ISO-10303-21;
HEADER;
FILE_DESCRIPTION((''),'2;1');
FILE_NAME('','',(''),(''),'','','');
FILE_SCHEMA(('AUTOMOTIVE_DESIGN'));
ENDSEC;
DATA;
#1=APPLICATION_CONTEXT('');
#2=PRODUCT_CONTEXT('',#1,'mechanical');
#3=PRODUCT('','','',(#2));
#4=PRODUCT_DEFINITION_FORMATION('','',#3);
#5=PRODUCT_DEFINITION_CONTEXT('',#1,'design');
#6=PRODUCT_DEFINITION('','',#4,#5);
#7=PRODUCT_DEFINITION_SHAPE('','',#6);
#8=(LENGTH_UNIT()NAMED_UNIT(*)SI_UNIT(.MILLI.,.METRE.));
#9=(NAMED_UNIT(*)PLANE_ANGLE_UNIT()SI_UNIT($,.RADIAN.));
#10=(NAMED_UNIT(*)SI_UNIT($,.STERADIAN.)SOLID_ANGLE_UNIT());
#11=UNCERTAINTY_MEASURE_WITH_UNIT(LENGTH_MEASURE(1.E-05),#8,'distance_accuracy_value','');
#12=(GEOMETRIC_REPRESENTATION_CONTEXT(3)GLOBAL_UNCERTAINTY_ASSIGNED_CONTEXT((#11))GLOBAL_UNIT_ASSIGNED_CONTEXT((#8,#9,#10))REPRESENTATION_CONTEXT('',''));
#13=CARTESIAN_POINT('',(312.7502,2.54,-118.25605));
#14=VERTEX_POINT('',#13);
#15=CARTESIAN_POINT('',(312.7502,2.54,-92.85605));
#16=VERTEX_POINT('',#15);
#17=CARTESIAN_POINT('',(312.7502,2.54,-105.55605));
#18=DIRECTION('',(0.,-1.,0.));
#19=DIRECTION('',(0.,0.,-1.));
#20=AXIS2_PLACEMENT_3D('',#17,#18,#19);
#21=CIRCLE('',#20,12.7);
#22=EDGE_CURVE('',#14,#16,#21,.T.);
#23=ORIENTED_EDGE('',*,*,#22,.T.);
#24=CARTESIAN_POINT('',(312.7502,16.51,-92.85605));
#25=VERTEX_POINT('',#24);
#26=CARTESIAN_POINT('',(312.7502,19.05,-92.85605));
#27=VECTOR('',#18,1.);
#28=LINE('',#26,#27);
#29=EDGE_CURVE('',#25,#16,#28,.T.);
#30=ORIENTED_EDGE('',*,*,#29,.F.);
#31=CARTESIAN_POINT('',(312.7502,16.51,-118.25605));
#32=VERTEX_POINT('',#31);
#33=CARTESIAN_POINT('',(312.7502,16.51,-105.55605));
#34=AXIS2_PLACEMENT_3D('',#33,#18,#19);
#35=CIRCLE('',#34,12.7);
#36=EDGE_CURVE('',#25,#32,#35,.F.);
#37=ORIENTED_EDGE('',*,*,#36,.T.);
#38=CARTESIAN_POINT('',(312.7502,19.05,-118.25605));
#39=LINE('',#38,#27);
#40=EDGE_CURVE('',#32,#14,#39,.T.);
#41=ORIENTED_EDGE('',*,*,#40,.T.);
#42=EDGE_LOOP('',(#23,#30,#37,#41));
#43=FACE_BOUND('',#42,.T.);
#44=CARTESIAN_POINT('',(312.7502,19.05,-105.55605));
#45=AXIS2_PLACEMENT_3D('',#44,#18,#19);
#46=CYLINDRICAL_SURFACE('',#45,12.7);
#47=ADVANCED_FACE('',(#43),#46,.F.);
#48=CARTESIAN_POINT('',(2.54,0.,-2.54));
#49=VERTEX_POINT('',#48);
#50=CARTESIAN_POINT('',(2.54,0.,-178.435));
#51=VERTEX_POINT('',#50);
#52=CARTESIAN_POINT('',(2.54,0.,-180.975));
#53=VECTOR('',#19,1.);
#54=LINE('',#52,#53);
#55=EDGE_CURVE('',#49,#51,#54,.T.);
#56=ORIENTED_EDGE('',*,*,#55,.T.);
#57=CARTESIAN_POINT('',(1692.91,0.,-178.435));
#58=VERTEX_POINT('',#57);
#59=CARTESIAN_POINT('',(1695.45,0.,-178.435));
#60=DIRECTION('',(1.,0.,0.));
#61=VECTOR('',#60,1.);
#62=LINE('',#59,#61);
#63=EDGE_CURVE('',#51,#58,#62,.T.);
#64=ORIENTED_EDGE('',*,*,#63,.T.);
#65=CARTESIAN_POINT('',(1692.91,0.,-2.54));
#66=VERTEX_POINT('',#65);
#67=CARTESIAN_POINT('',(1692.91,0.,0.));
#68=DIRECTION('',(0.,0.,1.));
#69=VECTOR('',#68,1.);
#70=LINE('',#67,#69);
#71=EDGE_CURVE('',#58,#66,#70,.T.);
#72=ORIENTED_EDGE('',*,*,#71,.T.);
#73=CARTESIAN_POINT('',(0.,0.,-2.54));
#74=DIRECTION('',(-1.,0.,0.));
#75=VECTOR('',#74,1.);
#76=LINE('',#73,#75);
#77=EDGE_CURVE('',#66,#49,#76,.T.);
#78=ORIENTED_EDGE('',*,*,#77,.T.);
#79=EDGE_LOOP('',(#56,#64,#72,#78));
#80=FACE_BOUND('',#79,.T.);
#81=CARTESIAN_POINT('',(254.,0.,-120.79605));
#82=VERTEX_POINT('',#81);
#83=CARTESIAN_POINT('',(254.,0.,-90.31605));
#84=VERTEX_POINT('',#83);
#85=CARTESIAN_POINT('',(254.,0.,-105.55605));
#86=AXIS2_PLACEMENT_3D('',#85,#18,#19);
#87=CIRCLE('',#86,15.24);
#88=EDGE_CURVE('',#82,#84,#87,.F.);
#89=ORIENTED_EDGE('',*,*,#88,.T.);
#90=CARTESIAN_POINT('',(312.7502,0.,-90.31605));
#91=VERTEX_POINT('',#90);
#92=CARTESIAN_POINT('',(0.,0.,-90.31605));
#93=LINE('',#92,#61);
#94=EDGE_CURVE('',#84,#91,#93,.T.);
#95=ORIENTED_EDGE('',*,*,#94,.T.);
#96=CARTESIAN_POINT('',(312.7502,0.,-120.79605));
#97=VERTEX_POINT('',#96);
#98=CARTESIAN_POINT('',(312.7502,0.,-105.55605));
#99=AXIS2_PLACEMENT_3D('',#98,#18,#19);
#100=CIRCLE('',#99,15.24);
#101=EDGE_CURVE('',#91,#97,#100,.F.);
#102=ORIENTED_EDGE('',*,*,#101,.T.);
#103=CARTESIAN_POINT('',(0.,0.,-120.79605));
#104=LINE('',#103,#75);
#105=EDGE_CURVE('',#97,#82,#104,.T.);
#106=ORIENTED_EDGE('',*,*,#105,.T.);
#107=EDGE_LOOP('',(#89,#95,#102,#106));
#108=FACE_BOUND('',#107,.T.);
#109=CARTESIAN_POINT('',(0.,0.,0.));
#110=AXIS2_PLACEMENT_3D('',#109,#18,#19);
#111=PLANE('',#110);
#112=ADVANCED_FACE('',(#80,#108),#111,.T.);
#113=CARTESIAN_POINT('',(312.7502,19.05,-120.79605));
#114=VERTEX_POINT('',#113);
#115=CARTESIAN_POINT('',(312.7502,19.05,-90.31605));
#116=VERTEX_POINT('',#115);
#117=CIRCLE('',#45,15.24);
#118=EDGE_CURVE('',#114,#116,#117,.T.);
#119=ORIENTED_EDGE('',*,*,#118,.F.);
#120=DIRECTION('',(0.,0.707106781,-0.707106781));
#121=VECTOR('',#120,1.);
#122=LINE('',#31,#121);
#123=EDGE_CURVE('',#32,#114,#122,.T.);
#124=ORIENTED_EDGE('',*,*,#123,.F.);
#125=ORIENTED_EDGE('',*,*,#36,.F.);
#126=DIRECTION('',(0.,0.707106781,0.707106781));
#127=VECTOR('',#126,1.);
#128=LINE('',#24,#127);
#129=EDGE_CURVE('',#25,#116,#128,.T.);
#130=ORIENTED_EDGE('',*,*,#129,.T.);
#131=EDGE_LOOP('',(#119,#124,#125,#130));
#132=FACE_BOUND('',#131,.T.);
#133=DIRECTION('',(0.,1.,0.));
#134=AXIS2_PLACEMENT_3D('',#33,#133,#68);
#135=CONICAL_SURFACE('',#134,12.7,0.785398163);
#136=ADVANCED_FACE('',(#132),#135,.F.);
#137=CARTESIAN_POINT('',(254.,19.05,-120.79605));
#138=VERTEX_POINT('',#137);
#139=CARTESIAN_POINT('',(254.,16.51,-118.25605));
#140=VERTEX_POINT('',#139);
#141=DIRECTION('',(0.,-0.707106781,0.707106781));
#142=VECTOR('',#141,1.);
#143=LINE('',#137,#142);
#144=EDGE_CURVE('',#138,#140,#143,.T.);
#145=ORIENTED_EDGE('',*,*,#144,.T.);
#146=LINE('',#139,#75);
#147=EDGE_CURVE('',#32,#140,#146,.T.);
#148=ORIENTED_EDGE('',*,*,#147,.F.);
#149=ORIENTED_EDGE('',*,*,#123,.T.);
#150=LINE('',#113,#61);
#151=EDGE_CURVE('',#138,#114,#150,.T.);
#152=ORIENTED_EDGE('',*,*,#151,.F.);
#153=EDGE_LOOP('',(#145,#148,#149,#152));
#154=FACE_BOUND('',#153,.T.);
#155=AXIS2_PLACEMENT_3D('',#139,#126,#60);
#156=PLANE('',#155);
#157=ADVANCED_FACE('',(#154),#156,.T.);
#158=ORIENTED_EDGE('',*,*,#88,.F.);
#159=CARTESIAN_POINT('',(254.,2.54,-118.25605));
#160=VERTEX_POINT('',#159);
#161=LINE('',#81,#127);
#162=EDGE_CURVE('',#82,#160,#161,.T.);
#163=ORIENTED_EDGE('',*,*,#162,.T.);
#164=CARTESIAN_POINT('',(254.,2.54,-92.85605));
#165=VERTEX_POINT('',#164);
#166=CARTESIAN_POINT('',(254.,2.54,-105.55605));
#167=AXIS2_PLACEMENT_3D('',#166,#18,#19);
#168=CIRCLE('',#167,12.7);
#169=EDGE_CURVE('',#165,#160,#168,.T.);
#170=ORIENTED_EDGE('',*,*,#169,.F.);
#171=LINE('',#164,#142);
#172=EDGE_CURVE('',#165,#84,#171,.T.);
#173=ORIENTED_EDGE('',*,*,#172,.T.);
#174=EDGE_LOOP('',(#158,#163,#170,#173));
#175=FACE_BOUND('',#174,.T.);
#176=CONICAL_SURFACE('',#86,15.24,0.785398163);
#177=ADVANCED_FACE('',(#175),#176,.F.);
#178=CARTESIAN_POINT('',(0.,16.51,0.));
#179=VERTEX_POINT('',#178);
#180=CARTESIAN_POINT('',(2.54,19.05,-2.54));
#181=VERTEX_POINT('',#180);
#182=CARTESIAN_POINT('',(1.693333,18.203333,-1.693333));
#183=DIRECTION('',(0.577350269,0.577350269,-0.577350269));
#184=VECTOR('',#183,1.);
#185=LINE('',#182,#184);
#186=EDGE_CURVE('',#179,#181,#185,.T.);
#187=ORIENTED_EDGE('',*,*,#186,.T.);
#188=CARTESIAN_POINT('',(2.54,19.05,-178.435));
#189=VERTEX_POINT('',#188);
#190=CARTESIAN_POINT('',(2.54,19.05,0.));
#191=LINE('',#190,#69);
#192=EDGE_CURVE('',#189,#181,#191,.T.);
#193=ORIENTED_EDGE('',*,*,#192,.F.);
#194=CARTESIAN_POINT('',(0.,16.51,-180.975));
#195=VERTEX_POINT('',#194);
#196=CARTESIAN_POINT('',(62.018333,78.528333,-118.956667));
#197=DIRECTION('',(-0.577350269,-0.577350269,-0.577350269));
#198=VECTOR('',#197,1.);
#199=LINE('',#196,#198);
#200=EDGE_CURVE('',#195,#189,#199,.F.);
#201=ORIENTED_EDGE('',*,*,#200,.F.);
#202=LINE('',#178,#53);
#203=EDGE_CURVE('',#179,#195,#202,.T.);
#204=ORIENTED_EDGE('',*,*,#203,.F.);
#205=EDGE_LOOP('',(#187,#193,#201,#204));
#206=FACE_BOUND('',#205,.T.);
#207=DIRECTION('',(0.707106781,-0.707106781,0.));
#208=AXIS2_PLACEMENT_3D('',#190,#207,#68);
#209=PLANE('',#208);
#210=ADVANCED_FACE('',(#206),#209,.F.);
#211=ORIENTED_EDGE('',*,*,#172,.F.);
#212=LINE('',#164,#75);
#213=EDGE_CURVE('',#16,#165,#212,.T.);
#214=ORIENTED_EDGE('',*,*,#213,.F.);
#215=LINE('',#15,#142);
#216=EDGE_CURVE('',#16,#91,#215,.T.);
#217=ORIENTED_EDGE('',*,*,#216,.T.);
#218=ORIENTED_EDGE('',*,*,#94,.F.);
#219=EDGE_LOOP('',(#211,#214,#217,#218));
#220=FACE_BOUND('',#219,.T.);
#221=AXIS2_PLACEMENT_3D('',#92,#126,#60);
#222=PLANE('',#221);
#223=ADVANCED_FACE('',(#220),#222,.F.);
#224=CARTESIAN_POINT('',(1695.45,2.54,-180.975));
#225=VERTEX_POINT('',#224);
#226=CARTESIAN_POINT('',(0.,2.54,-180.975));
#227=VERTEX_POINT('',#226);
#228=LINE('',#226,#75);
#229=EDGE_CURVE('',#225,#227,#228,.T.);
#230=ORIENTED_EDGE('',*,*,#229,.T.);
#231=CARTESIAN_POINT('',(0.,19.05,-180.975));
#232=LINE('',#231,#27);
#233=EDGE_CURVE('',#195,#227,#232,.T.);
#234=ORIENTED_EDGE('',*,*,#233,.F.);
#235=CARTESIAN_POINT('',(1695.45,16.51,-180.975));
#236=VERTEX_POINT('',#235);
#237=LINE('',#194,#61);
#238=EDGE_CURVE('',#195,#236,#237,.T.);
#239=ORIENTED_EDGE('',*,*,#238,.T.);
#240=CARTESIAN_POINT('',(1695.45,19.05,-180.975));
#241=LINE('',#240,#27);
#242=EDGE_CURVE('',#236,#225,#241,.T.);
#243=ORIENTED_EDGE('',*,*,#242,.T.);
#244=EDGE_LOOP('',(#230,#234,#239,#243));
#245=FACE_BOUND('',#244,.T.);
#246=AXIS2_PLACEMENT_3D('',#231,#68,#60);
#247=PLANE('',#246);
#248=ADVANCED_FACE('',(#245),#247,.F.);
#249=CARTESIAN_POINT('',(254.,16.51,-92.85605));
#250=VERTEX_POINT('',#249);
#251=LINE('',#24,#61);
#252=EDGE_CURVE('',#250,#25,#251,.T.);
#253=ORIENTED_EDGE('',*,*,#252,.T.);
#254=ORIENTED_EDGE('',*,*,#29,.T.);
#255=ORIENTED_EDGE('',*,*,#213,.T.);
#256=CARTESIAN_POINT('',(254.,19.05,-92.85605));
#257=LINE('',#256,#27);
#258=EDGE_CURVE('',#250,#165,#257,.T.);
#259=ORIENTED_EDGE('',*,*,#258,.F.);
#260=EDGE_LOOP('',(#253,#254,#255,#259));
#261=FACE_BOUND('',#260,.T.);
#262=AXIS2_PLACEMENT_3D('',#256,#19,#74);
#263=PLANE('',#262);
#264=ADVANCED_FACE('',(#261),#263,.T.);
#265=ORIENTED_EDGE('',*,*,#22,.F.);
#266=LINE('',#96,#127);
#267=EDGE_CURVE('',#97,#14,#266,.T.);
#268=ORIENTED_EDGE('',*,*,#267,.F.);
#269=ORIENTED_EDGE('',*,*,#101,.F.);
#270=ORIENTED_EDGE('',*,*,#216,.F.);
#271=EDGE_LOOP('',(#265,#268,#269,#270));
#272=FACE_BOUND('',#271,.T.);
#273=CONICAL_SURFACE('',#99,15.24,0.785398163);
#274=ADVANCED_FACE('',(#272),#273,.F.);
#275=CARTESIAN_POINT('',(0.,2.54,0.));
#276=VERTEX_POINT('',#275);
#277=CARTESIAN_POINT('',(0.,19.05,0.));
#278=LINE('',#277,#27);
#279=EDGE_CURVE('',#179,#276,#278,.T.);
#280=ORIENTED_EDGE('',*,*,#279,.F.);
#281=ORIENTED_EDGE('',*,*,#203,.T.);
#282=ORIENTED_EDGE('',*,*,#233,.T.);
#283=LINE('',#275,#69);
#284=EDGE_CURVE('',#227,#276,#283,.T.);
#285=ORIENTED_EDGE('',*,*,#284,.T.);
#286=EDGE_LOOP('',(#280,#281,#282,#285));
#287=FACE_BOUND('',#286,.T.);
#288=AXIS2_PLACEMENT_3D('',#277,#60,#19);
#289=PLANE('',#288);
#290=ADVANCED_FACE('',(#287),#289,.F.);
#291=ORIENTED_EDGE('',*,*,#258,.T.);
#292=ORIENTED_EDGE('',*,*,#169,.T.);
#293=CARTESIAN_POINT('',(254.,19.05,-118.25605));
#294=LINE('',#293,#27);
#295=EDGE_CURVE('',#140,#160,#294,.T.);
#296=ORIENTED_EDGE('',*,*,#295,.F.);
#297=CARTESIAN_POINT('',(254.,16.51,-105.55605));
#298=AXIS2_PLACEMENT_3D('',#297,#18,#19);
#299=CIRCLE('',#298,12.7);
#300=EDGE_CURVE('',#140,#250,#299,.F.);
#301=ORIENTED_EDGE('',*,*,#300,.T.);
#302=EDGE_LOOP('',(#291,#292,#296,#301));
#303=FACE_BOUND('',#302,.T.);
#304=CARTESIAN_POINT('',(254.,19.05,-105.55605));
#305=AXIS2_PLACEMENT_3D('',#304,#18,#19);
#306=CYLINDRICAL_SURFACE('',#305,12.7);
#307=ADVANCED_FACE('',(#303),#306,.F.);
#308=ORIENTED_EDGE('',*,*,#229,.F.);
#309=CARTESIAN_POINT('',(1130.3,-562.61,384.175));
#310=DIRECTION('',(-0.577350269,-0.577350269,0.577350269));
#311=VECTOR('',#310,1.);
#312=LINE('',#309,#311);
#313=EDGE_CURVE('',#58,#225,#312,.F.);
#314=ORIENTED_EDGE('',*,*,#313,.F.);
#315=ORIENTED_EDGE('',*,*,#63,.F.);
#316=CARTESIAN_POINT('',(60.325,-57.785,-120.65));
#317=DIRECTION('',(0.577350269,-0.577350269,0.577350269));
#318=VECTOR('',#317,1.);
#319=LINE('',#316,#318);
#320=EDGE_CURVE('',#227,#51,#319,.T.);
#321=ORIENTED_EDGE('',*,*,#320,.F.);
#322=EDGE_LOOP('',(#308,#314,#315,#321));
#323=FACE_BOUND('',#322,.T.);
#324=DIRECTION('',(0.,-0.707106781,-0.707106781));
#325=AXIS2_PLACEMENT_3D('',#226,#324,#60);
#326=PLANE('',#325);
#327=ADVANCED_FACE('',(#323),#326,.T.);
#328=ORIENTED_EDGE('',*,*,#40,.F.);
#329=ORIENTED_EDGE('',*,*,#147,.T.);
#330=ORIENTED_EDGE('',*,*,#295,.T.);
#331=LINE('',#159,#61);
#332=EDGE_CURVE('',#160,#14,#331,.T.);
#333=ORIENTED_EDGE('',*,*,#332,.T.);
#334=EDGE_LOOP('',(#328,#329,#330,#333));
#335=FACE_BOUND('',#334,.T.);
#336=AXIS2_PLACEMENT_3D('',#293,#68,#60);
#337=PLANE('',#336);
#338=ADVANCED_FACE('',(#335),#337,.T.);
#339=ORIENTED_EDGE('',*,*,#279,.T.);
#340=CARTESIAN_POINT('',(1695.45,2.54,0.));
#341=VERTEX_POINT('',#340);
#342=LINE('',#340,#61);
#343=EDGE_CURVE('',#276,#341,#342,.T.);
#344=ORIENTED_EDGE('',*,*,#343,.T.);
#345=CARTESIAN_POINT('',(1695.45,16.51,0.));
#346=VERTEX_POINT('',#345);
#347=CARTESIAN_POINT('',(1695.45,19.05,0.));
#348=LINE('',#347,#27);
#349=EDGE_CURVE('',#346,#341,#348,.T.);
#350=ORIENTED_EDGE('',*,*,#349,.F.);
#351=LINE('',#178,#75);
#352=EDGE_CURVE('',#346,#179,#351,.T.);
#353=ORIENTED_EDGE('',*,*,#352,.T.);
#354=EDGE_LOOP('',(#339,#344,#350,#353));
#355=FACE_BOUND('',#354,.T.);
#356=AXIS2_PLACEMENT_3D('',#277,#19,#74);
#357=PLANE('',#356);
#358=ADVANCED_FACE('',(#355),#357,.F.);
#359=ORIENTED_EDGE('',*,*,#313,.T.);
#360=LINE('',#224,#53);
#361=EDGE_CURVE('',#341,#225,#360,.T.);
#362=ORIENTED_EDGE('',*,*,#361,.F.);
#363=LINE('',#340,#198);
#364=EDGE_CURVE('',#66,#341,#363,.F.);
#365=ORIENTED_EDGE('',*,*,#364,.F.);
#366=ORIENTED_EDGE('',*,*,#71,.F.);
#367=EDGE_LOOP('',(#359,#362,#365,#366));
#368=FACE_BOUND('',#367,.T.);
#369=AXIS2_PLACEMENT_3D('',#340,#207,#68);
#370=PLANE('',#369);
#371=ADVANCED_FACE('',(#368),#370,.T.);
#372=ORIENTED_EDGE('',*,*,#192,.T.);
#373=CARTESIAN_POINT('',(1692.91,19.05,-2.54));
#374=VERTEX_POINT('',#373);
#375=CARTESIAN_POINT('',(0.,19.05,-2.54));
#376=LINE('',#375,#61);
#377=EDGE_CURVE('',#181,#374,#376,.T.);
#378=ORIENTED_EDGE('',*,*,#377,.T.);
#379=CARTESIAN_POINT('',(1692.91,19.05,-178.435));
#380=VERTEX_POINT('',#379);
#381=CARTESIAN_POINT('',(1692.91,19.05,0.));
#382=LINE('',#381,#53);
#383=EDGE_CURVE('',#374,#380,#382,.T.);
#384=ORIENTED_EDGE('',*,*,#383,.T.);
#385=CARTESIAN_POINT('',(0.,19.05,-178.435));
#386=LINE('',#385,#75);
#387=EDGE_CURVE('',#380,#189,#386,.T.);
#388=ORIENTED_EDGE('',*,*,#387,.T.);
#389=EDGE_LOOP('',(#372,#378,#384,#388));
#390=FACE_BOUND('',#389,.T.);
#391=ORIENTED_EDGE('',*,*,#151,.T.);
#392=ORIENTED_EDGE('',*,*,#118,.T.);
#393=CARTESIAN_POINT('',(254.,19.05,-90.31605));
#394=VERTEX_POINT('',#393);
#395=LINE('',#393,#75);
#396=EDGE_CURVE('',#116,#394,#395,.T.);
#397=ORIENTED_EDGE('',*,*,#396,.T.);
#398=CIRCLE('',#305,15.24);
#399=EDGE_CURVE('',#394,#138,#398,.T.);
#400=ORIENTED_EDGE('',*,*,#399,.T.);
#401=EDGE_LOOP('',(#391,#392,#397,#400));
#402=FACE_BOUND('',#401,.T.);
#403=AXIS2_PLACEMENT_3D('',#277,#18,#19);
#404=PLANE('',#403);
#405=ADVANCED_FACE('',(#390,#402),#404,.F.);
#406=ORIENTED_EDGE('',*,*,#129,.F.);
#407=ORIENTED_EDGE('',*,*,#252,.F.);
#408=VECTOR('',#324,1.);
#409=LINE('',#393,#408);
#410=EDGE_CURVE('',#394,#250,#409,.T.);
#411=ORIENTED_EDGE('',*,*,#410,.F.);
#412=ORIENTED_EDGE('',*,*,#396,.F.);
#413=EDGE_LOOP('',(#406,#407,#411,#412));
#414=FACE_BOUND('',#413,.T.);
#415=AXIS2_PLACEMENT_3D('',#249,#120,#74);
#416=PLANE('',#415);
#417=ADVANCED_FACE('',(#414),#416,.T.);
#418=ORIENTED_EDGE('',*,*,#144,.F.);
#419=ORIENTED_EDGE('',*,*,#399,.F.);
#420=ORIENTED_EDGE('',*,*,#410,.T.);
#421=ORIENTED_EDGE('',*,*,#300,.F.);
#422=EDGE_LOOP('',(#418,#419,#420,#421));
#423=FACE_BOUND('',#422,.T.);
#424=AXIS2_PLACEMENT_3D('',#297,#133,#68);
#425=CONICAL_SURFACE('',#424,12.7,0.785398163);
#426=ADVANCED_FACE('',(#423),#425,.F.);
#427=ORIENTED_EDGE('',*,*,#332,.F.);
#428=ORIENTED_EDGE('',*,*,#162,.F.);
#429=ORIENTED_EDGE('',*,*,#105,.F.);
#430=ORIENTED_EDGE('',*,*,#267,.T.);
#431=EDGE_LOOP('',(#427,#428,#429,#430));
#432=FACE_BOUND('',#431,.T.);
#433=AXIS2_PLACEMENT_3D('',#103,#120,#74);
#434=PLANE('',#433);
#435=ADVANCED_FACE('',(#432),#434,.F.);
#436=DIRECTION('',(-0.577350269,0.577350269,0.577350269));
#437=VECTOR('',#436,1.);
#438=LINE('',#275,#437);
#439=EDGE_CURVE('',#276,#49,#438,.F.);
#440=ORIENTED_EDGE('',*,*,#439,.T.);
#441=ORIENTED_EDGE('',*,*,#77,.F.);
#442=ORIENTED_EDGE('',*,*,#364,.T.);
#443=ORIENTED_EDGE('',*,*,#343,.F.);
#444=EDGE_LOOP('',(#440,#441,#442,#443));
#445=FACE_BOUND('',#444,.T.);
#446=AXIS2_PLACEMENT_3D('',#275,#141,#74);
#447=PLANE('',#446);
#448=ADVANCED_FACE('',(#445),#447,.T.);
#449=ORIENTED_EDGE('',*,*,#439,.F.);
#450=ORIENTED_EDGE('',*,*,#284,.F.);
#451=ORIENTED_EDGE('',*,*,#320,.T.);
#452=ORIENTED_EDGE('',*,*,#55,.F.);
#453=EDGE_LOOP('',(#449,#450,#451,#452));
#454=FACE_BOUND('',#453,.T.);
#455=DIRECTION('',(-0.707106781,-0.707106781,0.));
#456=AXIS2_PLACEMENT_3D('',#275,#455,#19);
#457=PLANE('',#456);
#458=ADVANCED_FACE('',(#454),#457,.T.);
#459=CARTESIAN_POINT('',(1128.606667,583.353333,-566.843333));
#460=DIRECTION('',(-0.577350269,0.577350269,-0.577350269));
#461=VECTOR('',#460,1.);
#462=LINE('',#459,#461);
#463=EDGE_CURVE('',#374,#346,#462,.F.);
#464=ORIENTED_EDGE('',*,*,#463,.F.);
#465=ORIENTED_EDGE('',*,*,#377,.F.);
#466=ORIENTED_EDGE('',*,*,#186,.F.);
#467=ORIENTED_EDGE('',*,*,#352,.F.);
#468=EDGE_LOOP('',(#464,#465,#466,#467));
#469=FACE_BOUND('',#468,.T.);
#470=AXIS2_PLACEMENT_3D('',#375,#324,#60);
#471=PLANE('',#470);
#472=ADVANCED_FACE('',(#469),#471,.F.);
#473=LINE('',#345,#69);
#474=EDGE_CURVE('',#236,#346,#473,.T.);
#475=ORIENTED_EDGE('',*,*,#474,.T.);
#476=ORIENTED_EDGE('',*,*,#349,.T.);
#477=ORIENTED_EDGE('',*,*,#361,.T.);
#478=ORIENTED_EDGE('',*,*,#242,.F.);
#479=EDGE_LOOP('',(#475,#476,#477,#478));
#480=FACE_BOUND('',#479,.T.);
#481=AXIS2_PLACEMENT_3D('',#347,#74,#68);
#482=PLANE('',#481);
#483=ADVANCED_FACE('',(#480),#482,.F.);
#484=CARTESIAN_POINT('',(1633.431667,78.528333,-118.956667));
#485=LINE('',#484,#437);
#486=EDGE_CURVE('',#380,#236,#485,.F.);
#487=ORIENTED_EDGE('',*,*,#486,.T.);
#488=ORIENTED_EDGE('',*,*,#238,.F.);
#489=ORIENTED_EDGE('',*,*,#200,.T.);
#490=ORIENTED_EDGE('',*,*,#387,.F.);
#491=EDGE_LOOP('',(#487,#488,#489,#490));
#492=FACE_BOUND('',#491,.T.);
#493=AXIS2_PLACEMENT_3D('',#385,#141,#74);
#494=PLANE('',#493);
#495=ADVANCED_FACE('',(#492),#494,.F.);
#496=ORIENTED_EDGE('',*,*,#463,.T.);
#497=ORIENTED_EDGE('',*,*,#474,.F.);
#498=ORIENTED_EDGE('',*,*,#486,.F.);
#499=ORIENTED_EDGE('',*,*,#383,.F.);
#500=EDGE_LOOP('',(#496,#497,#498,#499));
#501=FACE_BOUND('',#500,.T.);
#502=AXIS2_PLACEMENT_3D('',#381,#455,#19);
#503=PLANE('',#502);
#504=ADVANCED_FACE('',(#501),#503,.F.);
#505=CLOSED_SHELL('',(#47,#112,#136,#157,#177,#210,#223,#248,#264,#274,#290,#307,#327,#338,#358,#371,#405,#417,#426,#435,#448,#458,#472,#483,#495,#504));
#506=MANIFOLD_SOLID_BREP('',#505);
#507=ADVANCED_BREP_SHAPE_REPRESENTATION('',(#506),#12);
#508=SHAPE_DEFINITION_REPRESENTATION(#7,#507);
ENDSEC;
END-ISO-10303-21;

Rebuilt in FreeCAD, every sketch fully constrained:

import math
import FreeCAD as App
import Part
import Sketcher
from FreeCAD import Vector
Q = App.Units.Quantity


def edges_at(feature, points):
    """Names of the edges that pass closest to the given points."""
    edges = feature.Shape.Edges
    near = lambda p: min(range(len(edges)), key=lambda i: edges[i].distToShape(Part.Vertex(*p))[0])
    return sorted({f"Edge{near(p) + 1}" for p in points})

doc = App.newDocument("Part")
body = doc.addObject("PartDesign::Body", "Body")

# Sketch on XZ plane
sketch1 = body.newObject("Sketcher::SketchObject", "Sketch")
sketch1.AttachmentSupport = (doc.getObject("XZ_Plane"), [""])
sketch1.MapMode = "FlatFace"
sketch1.addGeometry([
    Part.LineSegment(Vector(0, -181, 0), Vector(0, 0, 0)),  # 0
    Part.LineSegment(Vector(0, 0, 0), Vector(1695, 0, 0)),  # 1
    Part.LineSegment(Vector(1695, 0, 0), Vector(1695, -181, 0)),  # 2
    Part.LineSegment(Vector(1695, -181, 0), Vector(0, -181, 0)),  # 3
    Part.ArcOfCircle(Part.Circle(Vector(254, -106, 0), Vector(0, 0, 1), 13), math.radians(90), math.radians(270)),  # 4
    Part.LineSegment(Vector(254, -118, 0), Vector(313, -118, 0)),  # 5
    Part.ArcOfCircle(Part.Circle(Vector(313, -106, 0), Vector(0, 0, 1), 13), math.radians(-90), math.radians(90)),  # 6
    Part.LineSegment(Vector(313, -93, 0), Vector(254, -93, 0)),  # 7
], False)
sketch1.addConstraint([
    Sketcher.Constraint("Coincident", 0, 2, 1, 1),
    Sketcher.Constraint("Coincident", 1, 2, 2, 1),
    Sketcher.Constraint("Coincident", 2, 2, 3, 1),
    Sketcher.Constraint("Coincident", 3, 2, 0, 1),
    Sketcher.Constraint("Tangent", 4, 2, 5, 1),
    Sketcher.Constraint("Tangent", 5, 2, 6, 1),
    Sketcher.Constraint("Tangent", 6, 2, 7, 1),
    Sketcher.Constraint("Tangent", 7, 2, 4, 1),
    Sketcher.Constraint("Vertical", 0),
    Sketcher.Constraint("Horizontal", 1),
    Sketcher.Constraint("Vertical", 2),
    Sketcher.Constraint("Horizontal", 3),
    Sketcher.Constraint("Horizontal", 5),
    Sketcher.Constraint("Horizontal", 7),
    Sketcher.Constraint("Coincident", 0, 2, -1, 1),
    Sketcher.Constraint("Radius", 4, Q("0.5 in")),
    Sketcher.Constraint("DistanceX", -1, 1, 4, 3, Q("10 in")),
    Sketcher.Constraint("DistanceX", 1, 1, 1, 2, Q("66.75 in")),
    Sketcher.Constraint("DistanceX", 5, 1, 5, 2, Q("2.313 in")),
    Sketcher.Constraint("DistanceY", 0, 1, 0, 2, Q("7.125 in")),
    Sketcher.Constraint("DistanceY", 4, 3, -1, 1, 105.55605),
])
pad1 = body.newObject("PartDesign::Pad", "Pad")
pad1.Profile = sketch1
pad1.Length = Q("0.75 in")
pad1.Reversed = True
doc.recompute()

chamfer = body.newObject("PartDesign::Chamfer", "Chamfer")
chamfer.Base = (pad1, edges_at(pad1, [
    (1695.45, 19.05, -90.487),
    (325.45, 19.05, -105.556),
    (847.725, 19.05, -180.975),
    (283.375, 19.05, -118.256),
    (241.3, 19.05, -105.556),
    (283.375, 19.05, -92.856),
    (0, 19.05, -90.487),
    (847.725, 19.05, 0),
]))
chamfer.Size = Q("0.1 in")
doc.recompute()

chamfer2 = body.newObject("PartDesign::Chamfer", "Chamfer001")
chamfer2.Base = (chamfer, edges_at(chamfer, [
    (325.45, 0, -105.556),
    (283.375, 0, -118.256),
    (241.3, 0, -105.556),
    (283.375, 0, -92.856),
    (847.725, 0, -180.975),
    (1695.45, 0, -90.487),
    (847.725, 0, 0),
    (0, 0, -90.487),
]))
chamfer2.Size = Q("0.1 in")

doc.recompute()
